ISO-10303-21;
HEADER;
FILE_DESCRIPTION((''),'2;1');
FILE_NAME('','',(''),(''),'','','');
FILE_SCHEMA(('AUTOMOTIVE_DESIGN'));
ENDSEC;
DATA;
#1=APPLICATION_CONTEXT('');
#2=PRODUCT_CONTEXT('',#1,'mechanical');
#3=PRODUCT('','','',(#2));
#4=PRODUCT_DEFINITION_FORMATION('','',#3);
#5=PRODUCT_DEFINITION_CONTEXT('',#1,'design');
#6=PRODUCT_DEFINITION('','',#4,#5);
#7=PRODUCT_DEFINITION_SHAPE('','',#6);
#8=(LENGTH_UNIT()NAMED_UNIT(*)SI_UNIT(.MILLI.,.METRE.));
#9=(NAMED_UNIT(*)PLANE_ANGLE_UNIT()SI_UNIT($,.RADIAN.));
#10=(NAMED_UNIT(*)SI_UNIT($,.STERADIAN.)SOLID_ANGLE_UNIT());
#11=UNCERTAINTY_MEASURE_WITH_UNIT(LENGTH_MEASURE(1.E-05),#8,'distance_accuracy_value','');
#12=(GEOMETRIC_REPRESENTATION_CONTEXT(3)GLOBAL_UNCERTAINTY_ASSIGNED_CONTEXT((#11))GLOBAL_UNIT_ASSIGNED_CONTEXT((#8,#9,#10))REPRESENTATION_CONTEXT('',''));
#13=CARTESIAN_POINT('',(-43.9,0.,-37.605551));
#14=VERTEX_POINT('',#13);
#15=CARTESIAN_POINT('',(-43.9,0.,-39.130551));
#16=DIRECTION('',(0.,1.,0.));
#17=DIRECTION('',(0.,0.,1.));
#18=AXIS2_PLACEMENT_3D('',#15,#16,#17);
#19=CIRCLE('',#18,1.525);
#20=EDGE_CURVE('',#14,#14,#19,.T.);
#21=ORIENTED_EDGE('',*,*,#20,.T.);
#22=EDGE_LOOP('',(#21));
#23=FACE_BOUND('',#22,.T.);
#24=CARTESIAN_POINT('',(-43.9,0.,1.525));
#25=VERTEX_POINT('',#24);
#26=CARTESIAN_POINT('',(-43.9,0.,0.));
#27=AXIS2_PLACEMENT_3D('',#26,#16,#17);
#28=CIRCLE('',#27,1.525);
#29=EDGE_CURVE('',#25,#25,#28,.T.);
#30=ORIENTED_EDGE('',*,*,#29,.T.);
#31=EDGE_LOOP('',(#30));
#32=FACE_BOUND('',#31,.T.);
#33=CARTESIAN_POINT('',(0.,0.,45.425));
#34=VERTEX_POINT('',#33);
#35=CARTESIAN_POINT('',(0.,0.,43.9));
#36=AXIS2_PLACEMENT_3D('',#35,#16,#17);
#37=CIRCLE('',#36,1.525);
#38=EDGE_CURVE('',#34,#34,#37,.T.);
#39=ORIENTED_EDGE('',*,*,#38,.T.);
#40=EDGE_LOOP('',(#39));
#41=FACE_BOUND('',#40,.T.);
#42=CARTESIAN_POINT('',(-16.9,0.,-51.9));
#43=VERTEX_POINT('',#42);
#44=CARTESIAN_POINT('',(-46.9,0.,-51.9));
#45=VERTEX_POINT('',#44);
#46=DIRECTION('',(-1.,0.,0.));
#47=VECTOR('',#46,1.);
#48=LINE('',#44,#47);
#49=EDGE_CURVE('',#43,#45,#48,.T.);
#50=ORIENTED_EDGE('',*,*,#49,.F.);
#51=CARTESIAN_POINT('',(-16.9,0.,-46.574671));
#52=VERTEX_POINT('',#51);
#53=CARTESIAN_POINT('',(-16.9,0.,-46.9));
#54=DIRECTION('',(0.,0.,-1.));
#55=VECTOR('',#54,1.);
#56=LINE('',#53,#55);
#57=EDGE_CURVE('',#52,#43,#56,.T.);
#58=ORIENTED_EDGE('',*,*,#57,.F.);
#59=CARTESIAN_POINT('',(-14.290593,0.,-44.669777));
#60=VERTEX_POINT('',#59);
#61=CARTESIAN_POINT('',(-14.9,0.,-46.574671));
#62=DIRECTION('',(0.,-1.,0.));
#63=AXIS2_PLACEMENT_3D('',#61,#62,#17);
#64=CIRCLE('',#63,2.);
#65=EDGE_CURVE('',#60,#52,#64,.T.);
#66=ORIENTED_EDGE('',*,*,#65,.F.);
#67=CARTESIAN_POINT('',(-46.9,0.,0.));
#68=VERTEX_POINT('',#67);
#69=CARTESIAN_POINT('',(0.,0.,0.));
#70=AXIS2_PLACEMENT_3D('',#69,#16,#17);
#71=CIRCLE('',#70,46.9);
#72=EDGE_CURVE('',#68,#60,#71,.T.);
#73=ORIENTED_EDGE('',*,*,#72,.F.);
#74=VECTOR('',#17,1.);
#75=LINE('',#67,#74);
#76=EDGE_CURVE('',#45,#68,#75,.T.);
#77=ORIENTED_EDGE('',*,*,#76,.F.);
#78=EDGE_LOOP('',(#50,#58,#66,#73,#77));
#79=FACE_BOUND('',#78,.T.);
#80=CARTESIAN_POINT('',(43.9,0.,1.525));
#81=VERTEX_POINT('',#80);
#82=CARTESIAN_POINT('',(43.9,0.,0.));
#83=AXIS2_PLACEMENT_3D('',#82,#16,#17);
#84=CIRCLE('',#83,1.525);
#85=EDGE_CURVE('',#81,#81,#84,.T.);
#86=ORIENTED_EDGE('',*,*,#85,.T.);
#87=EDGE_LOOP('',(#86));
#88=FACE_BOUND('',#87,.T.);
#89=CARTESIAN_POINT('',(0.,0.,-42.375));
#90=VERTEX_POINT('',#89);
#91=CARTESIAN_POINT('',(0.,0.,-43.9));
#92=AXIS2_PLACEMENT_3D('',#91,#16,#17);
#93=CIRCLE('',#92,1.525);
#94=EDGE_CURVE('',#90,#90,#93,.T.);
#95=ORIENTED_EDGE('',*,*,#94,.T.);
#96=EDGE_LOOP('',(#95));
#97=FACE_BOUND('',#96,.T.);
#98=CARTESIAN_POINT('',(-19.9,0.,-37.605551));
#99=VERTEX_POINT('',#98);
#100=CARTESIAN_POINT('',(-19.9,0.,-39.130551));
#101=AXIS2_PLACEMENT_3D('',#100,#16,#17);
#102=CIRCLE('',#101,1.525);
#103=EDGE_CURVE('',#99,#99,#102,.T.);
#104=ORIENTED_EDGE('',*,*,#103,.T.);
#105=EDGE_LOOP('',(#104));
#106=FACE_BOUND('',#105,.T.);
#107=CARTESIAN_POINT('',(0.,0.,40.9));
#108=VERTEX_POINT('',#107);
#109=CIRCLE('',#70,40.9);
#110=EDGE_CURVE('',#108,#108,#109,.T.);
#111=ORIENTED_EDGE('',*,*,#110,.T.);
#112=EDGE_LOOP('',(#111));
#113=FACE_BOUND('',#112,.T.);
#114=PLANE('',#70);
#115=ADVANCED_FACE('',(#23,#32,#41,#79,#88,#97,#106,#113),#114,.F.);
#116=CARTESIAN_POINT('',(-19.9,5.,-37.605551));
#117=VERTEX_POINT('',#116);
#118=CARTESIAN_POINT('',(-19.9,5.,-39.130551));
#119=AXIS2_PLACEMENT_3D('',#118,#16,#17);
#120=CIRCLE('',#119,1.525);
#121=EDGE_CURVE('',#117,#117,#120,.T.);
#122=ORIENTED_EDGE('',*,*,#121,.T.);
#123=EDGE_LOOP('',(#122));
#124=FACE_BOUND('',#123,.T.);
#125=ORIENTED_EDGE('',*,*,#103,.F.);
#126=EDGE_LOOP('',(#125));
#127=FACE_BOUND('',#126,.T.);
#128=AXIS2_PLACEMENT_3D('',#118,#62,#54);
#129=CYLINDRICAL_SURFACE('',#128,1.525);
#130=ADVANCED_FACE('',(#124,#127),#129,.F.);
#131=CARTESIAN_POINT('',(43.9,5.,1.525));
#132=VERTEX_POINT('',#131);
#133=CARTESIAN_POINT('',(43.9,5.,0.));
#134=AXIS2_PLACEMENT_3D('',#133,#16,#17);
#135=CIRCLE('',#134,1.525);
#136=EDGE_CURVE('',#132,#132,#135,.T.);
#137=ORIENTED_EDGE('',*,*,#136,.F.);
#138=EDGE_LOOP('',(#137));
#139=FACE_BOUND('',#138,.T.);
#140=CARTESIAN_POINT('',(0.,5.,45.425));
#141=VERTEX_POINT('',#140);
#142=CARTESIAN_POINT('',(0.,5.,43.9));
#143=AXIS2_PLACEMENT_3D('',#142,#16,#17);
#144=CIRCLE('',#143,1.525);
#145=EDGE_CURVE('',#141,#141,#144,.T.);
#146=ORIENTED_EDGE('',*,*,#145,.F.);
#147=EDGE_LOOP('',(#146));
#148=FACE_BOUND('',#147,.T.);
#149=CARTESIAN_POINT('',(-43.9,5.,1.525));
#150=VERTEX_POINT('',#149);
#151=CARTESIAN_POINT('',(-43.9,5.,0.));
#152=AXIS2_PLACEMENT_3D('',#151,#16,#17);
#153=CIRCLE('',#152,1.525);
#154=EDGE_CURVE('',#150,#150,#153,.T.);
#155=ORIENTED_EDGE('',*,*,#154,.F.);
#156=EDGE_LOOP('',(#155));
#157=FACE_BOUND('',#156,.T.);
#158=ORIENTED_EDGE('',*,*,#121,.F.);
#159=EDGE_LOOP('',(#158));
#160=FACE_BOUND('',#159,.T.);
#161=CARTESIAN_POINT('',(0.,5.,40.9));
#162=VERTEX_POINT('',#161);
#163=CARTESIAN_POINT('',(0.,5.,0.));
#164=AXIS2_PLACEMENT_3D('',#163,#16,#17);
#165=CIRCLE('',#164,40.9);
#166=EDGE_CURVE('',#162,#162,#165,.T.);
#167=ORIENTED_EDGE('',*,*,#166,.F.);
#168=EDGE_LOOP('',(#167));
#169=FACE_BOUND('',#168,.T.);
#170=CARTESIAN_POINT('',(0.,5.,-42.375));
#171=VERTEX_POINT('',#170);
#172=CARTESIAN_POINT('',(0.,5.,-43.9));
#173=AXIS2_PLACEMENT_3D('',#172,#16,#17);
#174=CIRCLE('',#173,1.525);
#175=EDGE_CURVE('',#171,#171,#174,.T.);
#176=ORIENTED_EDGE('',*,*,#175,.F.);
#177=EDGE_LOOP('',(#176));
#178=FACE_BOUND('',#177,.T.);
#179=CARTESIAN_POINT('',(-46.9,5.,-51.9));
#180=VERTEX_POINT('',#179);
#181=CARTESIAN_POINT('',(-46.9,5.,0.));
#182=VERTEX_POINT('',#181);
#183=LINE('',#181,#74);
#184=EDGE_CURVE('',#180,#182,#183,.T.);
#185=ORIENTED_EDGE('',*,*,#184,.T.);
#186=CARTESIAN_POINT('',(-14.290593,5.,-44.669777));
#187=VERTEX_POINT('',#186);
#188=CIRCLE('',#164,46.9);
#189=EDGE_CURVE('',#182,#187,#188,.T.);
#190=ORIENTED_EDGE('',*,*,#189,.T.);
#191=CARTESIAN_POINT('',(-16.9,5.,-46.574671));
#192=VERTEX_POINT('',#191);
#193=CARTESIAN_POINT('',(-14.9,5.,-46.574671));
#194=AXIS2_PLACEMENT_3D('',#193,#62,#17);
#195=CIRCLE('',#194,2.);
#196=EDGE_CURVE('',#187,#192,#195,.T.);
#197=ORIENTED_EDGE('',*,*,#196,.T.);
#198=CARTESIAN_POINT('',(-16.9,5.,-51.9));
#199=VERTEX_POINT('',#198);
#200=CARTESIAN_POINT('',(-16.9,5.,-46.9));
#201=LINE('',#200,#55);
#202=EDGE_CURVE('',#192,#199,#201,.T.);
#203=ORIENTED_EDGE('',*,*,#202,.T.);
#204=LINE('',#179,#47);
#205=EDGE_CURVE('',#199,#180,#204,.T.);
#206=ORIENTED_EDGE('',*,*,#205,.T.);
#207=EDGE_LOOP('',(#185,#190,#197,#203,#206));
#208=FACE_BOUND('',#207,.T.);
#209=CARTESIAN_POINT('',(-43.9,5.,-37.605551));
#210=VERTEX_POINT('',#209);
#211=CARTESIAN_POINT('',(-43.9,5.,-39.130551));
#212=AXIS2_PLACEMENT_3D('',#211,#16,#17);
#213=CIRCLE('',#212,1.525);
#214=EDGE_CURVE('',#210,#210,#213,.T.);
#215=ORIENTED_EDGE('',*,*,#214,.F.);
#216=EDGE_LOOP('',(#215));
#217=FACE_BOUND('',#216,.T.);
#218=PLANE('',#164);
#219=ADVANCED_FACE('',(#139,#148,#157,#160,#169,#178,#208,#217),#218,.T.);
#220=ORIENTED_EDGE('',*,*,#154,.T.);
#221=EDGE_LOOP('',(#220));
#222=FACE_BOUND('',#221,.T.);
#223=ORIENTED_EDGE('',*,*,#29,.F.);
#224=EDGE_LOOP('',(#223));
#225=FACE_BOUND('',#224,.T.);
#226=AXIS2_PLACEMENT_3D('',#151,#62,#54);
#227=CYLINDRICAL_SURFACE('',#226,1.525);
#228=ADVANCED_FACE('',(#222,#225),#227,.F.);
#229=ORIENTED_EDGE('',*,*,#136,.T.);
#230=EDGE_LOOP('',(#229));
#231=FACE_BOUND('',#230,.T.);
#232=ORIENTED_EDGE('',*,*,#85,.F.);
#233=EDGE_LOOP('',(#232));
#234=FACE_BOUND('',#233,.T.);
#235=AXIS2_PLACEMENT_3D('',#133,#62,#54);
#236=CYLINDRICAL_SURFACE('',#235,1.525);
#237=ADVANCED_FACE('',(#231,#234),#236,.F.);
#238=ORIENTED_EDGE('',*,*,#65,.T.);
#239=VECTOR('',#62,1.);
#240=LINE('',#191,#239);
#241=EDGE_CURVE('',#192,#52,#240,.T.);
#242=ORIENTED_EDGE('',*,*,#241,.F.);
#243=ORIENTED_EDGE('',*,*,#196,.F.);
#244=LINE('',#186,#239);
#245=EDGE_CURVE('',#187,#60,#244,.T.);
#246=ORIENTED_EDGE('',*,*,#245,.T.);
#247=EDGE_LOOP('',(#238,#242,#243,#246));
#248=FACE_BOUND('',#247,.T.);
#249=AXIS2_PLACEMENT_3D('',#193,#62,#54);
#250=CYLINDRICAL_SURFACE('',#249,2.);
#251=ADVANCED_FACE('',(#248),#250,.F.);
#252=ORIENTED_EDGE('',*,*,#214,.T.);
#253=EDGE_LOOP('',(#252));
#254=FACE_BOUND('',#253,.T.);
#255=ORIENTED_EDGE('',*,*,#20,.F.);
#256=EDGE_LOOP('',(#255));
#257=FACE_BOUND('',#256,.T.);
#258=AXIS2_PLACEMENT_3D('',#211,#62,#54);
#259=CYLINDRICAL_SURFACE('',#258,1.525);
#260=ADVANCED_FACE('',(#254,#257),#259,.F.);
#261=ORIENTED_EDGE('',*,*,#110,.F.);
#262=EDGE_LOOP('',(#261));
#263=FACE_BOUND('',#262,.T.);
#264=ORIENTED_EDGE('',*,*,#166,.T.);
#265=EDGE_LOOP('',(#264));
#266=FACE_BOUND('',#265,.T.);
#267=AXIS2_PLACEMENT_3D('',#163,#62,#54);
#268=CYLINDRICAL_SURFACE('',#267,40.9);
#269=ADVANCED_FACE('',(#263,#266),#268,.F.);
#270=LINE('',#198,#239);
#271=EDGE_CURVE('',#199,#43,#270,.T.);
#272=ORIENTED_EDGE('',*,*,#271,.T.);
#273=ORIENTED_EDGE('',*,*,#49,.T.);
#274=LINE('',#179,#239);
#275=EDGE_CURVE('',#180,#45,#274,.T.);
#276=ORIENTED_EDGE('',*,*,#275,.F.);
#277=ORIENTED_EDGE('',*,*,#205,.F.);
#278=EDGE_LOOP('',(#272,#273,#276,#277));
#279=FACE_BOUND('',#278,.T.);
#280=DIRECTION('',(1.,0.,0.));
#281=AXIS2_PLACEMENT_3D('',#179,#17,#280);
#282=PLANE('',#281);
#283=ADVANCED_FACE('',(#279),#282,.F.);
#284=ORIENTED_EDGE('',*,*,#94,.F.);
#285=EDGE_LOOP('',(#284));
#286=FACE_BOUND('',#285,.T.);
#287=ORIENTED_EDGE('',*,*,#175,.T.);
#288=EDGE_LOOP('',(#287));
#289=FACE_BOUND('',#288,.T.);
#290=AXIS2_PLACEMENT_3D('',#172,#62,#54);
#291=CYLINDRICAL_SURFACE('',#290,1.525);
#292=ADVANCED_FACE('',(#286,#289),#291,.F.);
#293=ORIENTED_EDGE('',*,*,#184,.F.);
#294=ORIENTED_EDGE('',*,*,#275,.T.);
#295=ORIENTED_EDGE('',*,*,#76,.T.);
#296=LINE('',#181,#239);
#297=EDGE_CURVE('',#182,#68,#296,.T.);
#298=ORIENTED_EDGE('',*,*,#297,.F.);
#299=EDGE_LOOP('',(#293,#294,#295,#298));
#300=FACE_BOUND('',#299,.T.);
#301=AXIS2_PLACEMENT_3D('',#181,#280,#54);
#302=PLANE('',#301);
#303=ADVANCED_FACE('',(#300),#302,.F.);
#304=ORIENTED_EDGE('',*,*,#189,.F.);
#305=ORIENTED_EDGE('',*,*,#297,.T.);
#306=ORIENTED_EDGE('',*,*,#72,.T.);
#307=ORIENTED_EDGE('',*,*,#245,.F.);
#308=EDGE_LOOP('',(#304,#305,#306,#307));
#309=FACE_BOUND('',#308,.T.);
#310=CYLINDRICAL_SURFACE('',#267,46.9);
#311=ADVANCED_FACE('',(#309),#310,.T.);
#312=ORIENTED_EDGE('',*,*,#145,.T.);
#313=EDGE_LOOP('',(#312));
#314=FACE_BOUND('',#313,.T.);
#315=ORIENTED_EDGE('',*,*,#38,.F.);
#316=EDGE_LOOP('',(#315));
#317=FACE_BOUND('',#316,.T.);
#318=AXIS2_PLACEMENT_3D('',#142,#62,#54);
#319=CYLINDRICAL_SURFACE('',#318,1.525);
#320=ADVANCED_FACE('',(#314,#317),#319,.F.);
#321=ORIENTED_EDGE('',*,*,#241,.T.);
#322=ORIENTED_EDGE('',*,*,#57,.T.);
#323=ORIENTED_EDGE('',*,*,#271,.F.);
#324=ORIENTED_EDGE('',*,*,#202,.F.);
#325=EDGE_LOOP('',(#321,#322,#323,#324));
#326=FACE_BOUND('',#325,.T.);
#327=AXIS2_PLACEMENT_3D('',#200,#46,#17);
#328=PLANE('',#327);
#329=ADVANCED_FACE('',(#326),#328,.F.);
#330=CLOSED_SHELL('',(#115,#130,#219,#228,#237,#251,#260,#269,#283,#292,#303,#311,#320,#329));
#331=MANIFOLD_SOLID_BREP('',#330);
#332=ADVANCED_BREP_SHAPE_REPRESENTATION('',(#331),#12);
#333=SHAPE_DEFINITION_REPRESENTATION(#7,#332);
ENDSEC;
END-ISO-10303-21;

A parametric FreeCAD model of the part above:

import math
import FreeCAD as App
import Part
import Sketcher

V = App.Vector

doc = App.newDocument("Part")
body = doc.addObject("PartDesign::Body", "Body")

# Sketch on XZ plane
sketch1 = body.newObject("Sketcher::SketchObject", "Sketch")
sketch1.AttachmentSupport = (doc.getObject("XZ_Plane"), [""])
sketch1.MapMode = "FlatFace"
sketch1.addGeometry(Part.LineSegment(V(-46.9, -46.9, 0), V(-46.9, 0, 0)), False)
sketch1.addGeometry(Part.ArcOfCircle(Part.Circle(V(0, 0, 0), V(0, 0, 1), 46.9), math.radians(-108), math.radians(180)), False)
sketch1.addGeometry(Part.ArcOfCircle(Part.Circle(V(-14.9, -46.57, 0), V(0, 0, 1), 2), math.radians(72), math.radians(180)), False)
sketch1.addGeometry(Part.LineSegment(V(-16.9, -46.57, 0), V(-16.9, -46.9, 0)), False)
sketch1.addGeometry(Part.LineSegment(V(-16.9, -46.9, 0), V(-46.9, -46.9, 0)), False)
sketch1.addGeometry(Part.Circle(V(0, 43.9, 0), V(0, 0, 1), 1.52), False)
sketch1.addGeometry(Part.Circle(V(43.9, 0, 0), V(0, 0, 1), 1.52), False)
sketch1.addGeometry(Part.Circle(V(0, 0, 0), V(0, 0, 1), 40.9), False)
sketch1.addGeometry(Part.Circle(V(-43.9, 0, 0), V(0, 0, 1), 1.52), False)
sketch1.addGeometry(Part.Circle(V(0, -43.9, 0), V(0, 0, 1), 1.52), False)
sketch1.addGeometry(Part.Circle(V(-19.9, -39.13, 0), V(0, 0, 1), 1.52), False)
sketch1.addGeometry(Part.Circle(V(-43.9, -39.13, 0), V(0, 0, 1), 1.52), False)
sketch1.addConstraint(Sketcher.Constraint("Tangent", 0, 2, 1, 2))
sketch1.addConstraint(Sketcher.Constraint("Tangent", 1, 1, 2, 1))
sketch1.addConstraint(Sketcher.Constraint("Tangent", 2, 2, 3, 1))
sketch1.addConstraint(Sketcher.Constraint("Coincident", 3, 2, 4, 1))
sketch1.addConstraint(Sketcher.Constraint("Coincident", 4, 2, 0, 1))
sketch1.addConstraint(Sketcher.Constraint("Vertical", 0))
sketch1.addConstraint(Sketcher.Constraint("Vertical", 3))
sketch1.addConstraint(Sketcher.Constraint("Horizontal", 4))
sketch1.addConstraint(Sketcher.Constraint("Coincident", 1, 3, -1, 1))
sketch1.addConstraint(Sketcher.Constraint("Coincident", 7, 3, -1, 1))
sketch1.addConstraint(Sketcher.Constraint("Equal", 5, 6))
sketch1.addConstraint(Sketcher.Constraint("Equal", 6, 8))
sketch1.addConstraint(Sketcher.Constraint("Equal", 8, 9))
sketch1.addConstraint(Sketcher.Constraint("Equal", 9, 10))
sketch1.addConstraint(Sketcher.Constraint("Equal", 10, 11))
sketch1.addConstraint(Sketcher.Constraint("Symmetric", 6, 3, 8, 3, -1, 1))
sketch1.addConstraint(Sketcher.Constraint("Symmetric", 5, 3, 9, 3, -1, 1))
sketch1.addConstraint(Sketcher.Constraint("PointOnObject", 5, 3, -2))
sketch1.addConstraint(Sketcher.Constraint("PointOnObject", 6, 3, -1))
sketch1.addConstraint(Sketcher.Constraint("Horizontal", 10, 3, 11, 3))
sketch1.addConstraint(Sketcher.Constraint("Vertical", 8, 3, 11, 3))
sketch1.addConstraint(Sketcher.Constraint("Radius", 2, 2.0))
sketch1.addConstraint(Sketcher.Constraint("Diameter", 7, 81.8))
sketch1.addConstraint(Sketcher.Constraint("Radius", 1, 46.9))
sketch1.addConstraint(Sketcher.Constraint("Diameter", 5, 3.05))
sketch1.addConstraint(Sketcher.Constraint("DistanceX", 4, 2, 4, 1, 30.0))
sketch1.addConstraint(Sketcher.Constraint("DistanceY", 0, 1, 0, 2, 46.9))
sketch1.addConstraint(Sketcher.Constraint("DistanceX", 8, 3, 2, 3, 29.0))
sketch1.addConstraint(Sketcher.Constraint("DistanceX", 10, 3, 2, 3, 5.0))
sketch1.addConstraint(Sketcher.Constraint("DistanceY", 3, 2, 9, 3, 3.0))
sketch1.addConstraint(Sketcher.Constraint("DistanceY", 10, 3, -1, 1, 39.130551))
pad1 = body.newObject("PartDesign::Pad", "Pad")
pad1.Profile = sketch1
pad1.Length = 5
pad1.Reversed = True

# Sketch on XZ plane
sketch2 = body.newObject("Sketcher::SketchObject", "Sketch001")
sketch2.AttachmentSupport = (doc.getObject("XZ_Plane"), [""])
sketch2.MapMode = "FlatFace"
sketch2.addGeometry(Part.LineSegment(V(-47, -52, 0), V(-47, -47, 0)), False)
sketch2.addGeometry(Part.LineSegment(V(-47, -47, 0), V(-17, -47, 0)), False)
sketch2.addGeometry(Part.LineSegment(V(-17, -47, 0), V(-17, -52, 0)), False)
sketch2.addGeometry(Part.LineSegment(V(-17, -52, 0), V(-47, -52, 0)), False)
sketch2.addConstraint(Sketcher.Constraint("Coincident", 0, 2, 1, 1))
sketch2.addConstraint(Sketcher.Constraint("Coincident", 1, 2, 2, 1))
sketch2.addConstraint(Sketcher.Constraint("Coincident", 2, 2, 3, 1))
sketch2.addConstraint(Sketcher.Constraint("Coincident", 3, 2, 0, 1))
sketch2.addConstraint(Sketcher.Constraint("Vertical", 0))
sketch2.addConstraint(Sketcher.Constraint("Horizontal", 1))
sketch2.addConstraint(Sketcher.Constraint("Vertical", 2))
sketch2.addConstraint(Sketcher.Constraint("Horizontal", 3))
sketch2.addConstraint(Sketcher.Constraint("DistanceX", 1, 1, 1, 2, 30.0))
sketch2.addConstraint(Sketcher.Constraint("DistanceY", 0, 1, 0, 2, 5.0))
sketch2.addConstraint(Sketcher.Constraint("DistanceX", 0, 2, -1, 1, 46.9))
sketch2.addConstraint(Sketcher.Constraint("DistanceY", 0, 2, -1, 1, 46.9))
pad2 = body.newObject("PartDesign::Pad", "Pad001")
pad2.Profile = sketch2
pad2.Length = 5
pad2.Reversed = True

doc.recompute()
